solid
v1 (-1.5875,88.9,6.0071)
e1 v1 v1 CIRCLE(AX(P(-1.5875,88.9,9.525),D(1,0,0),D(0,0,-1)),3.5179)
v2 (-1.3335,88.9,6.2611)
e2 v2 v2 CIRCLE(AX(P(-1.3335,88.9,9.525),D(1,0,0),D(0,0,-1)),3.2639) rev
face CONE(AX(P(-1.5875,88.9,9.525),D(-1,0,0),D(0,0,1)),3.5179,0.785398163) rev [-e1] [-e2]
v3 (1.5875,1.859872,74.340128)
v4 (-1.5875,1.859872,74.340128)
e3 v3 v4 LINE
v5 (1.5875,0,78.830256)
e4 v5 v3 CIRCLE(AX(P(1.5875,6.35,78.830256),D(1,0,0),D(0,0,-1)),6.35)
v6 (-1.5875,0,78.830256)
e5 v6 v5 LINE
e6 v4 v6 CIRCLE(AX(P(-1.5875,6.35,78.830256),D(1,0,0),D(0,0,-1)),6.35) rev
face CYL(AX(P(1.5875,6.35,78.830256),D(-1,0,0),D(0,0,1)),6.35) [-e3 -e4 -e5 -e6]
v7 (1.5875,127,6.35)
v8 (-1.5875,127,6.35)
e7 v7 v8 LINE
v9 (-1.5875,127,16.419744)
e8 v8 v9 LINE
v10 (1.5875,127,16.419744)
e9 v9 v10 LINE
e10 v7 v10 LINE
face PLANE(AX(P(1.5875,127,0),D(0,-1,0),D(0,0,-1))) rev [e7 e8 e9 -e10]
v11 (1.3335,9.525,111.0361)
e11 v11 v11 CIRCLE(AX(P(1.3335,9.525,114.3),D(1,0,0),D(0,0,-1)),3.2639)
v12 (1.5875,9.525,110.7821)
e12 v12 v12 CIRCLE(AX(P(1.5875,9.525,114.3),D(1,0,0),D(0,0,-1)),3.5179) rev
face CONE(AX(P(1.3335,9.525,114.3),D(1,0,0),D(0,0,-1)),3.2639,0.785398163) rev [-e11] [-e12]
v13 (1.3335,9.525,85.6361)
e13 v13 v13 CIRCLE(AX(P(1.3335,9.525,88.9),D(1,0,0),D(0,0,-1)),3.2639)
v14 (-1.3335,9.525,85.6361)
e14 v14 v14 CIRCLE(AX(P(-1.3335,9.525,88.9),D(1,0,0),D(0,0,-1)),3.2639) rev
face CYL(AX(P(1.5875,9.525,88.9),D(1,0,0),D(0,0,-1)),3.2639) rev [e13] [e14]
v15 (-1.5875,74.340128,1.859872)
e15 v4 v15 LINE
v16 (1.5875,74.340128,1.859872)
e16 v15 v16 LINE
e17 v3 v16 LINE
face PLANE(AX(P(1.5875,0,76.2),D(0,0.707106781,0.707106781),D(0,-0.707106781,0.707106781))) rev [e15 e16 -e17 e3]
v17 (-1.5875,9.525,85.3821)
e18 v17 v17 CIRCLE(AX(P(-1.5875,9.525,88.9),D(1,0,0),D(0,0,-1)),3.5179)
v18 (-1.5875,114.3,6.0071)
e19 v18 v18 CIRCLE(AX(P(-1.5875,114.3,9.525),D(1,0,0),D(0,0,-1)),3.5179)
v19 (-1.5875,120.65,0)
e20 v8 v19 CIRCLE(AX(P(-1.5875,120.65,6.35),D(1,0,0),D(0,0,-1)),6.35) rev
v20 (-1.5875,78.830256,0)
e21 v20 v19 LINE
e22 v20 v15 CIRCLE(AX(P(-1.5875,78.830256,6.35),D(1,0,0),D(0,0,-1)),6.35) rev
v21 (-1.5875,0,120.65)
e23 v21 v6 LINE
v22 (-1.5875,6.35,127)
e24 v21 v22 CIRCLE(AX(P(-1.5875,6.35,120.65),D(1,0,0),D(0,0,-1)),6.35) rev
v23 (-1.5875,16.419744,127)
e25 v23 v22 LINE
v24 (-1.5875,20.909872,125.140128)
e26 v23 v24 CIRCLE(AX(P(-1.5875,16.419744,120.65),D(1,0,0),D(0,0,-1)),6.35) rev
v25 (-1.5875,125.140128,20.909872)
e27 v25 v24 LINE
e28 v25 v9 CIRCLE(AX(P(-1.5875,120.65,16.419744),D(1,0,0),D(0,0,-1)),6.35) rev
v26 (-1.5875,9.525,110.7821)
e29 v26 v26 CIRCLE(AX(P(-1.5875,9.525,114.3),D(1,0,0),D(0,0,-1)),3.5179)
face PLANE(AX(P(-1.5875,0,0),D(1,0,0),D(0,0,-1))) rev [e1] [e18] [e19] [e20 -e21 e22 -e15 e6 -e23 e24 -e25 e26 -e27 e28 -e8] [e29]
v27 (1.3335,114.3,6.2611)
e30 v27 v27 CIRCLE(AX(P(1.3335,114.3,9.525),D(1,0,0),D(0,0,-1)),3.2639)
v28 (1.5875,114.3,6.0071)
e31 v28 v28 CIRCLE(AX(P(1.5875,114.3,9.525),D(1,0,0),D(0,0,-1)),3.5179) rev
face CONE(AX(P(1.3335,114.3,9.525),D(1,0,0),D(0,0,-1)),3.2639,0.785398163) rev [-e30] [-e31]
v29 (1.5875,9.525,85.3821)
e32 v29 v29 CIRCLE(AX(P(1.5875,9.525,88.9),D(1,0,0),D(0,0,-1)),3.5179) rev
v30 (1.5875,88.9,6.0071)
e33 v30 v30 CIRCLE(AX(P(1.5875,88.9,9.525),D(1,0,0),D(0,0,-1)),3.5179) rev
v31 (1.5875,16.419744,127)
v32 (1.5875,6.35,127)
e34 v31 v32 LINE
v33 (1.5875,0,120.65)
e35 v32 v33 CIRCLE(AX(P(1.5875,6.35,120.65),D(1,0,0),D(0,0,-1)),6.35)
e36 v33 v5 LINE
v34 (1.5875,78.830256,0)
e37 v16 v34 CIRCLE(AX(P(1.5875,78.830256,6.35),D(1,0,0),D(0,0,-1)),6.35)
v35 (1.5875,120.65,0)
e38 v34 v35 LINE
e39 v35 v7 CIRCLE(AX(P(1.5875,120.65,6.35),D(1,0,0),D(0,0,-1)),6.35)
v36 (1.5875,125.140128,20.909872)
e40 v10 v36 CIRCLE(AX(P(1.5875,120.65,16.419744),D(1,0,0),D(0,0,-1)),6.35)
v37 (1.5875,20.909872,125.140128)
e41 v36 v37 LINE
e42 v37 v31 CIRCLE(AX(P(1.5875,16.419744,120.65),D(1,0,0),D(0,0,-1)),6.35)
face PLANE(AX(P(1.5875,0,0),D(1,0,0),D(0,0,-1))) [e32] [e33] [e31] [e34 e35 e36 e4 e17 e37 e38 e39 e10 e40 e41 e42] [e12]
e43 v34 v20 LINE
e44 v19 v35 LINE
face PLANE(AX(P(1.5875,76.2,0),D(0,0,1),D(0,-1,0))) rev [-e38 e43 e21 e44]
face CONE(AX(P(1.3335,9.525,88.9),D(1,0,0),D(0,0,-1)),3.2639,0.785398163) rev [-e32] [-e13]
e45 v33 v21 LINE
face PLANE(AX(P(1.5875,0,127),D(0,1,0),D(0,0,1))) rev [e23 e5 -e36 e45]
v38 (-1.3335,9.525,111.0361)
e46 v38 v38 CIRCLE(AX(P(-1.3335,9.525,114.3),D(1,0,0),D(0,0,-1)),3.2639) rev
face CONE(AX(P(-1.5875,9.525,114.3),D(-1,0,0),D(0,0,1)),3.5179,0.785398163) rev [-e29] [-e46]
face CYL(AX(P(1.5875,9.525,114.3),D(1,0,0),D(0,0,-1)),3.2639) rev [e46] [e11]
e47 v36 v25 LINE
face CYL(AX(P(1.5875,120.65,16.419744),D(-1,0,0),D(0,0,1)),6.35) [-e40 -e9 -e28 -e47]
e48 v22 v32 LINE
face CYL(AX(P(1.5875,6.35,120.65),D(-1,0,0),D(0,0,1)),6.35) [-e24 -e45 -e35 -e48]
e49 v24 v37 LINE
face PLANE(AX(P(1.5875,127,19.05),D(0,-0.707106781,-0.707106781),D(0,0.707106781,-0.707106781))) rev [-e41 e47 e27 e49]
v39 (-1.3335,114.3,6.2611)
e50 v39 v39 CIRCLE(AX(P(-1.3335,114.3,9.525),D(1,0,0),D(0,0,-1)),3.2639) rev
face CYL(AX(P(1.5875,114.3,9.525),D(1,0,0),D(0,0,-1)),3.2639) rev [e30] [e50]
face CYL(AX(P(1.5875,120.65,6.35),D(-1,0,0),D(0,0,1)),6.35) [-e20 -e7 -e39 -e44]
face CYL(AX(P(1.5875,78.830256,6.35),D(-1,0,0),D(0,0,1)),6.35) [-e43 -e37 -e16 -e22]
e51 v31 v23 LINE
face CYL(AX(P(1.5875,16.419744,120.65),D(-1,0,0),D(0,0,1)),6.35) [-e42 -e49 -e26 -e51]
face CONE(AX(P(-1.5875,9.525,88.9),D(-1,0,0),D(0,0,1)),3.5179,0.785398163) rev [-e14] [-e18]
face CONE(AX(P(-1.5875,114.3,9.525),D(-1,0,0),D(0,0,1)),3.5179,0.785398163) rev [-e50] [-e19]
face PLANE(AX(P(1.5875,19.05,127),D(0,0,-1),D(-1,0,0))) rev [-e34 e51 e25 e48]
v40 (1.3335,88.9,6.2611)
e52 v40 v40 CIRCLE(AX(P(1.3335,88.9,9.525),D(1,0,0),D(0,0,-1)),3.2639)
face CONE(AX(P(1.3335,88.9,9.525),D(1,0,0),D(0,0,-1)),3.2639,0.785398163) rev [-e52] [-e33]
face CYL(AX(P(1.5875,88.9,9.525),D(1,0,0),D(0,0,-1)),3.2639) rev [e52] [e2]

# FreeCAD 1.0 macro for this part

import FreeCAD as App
import Part
import Sketcher

V = App.Vector
Q = App.Units.Quantity


def edges_at(feature, points):
    """Names of the edges that pass closest to the given points."""
    edges = feature.Shape.Edges
    near = lambda p: min(range(len(edges)), key=lambda i: edges[i].distToShape(Part.Vertex(*p))[0])
    return sorted({f"Edge{near(p) + 1}" for p in points})

doc = App.newDocument("Part")
body = doc.addObject("PartDesign::Body", "Body")

sketch1 = doc.addObject("Sketcher::SketchObject", "Sketch")
body.addObject(sketch1)
sketch1.AttachmentSupport = (doc.YZ_Plane, [""])
sketch1.MapMode = "FlatFace"
sketch1.addGeometry([
    Part.LineSegment(V(127, 0, 0), V(127, 19, 0)),
    Part.LineSegment(V(127, 19, 0), V(19, 127, 0)),
    Part.LineSegment(V(19, 127, 0), V(0, 127, 0)),
    Part.LineSegment(V(0, 127, 0), V(0, 76, 0)),
    Part.LineSegment(V(0, 76, 0), V(76, 0, 0)),
    Part.LineSegment(V(76, 0, 0), V(127, 0, 0)),
], False)
sketch1.addConstraint([
    Sketcher.Constraint("Coincident", 0, 2, 1, 1),
    Sketcher.Constraint("Coincident", 1, 2, 2, 1),
    Sketcher.Constraint("Coincident", 2, 2, 3, 1),
    Sketcher.Constraint("Coincident", 3, 2, 4, 1),
    Sketcher.Constraint("Coincident", 4, 2, 5, 1),
    Sketcher.Constraint("Coincident", 5, 2, 0, 1),
    Sketcher.Constraint("Vertical", 0),
    Sketcher.Constraint("Horizontal", 2),
    Sketcher.Constraint("Vertical", 3),
    Sketcher.Constraint("Horizontal", 5),
    Sketcher.Constraint("PointOnObject", 2, 2, -2),
    Sketcher.Constraint("PointOnObject", 4, 2, -1),
    Sketcher.Constraint("Parallel", 1, 4),
    Sketcher.Constraint("Equal", 2, 0),
    Sketcher.Constraint("Equal", 5, 3),
    Sketcher.Constraint("DistanceX", 5, 1, 5, 2, Q("2 in")),
    Sketcher.Constraint("DistanceX", -1, 1, 0, 2, Q("5 in")),
    Sketcher.Constraint("DistanceX", 2, 2, 2, 1, Q("0.75 in")),
])
pad1 = doc.addObject("PartDesign::Pad", "Pad")
body.addObject(pad1)
pad1.Profile = sketch1
pad1.Length = Q("0.125 in")
pad1.Midplane = True

sketch2 = doc.addObject("Sketcher::SketchObject", "Sketch001")
body.addObject(sketch2)
sketch2.AttachmentSupport = (doc.YZ_Plane, [""])
sketch2.MapMode = "FlatFace"
sketch2.AttachmentOffset = App.Placement(V(0, 0, 0.0625 * 25.4), App.Rotation())
sketch2.addGeometry([
    Part.Circle(V(9.5, 114.3, 0), V(0, 0, 1), 3.3),
    Part.Circle(V(9.5, 88.9, 0), V(0, 0, 1), 3.3),
    Part.Circle(V(88.9, 9.5, 0), V(0, 0, 1), 3.3),
    Part.Circle(V(114.3, 9.5, 0), V(0, 0, 1), 3.3),
], False)
sketch2.addConstraint([
    Sketcher.Constraint("Equal", 0, 1),
    Sketcher.Constraint("Equal", 1, 2),
    Sketcher.Constraint("Equal", 2, 3),
    Sketcher.Constraint("Horizontal", 2, 3, 3, 3),
    Sketcher.Constraint("Vertical", 0, 3, 1, 3),
    Sketcher.Constraint("Diameter", 0, Q("0.257 in")),
    Sketcher.Constraint("DistanceY", 1, 3, 0, 3, Q("1 in")),
    Sketcher.Constraint("DistanceX", 2, 3, 3, 3, Q("1 in")),
    Sketcher.Constraint("DistanceY", -1, 1, 0, 3, Q("4.5 in")),
    Sketcher.Constraint("DistanceX", -1, 1, 2, 3, Q("3.5 in")),
    Sketcher.Constraint("DistanceX", -1, 1, 0, 3, Q("0.375 in")),
    Sketcher.Constraint("DistanceY", -1, 1, 2, 3, Q("0.375 in")),
])
doc.recompute()
hole = doc.addObject("PartDesign::Hole", "Hole")
body.addObject(hole)
hole.Profile = sketch2
hole.ThreadType = "None"
hole.Diameter = Q("0.257 in")
hole.DepthType = "ThroughAll"
doc.recompute()

fillet = doc.addObject("PartDesign::Fillet", "Fillet")
body.addObject(fillet)
fillet.Base = (hole, edges_at(hole, [
    (0, 76.2, 0),
    (0, 0, 76.2),
    (0, 0, 127),
    (0, 19.05, 127),
    (0, 127, 19.05),
    (0, 127, 0),
]))
fillet.Radius = Q("0.25 in")
doc.recompute()

chamfer = doc.addObject("PartDesign::Chamfer", "Chamfer")
body.addObject(chamfer)
chamfer.Base = (fillet, edges_at(fillet, [
    (1.587, 114.3, 6.261),
    (-1.587, 114.3, 6.261),
    (1.587, 88.9, 6.261),
    (-1.587, 88.9, 6.261),
    (1.587, 9.525, 85.636),
    (-1.587, 9.525, 85.636),
    (1.587, 9.525, 111.036),
    (-1.587, 9.525, 111.036),
]))
chamfer.Size = Q("0.01 in")

doc.recompute()
